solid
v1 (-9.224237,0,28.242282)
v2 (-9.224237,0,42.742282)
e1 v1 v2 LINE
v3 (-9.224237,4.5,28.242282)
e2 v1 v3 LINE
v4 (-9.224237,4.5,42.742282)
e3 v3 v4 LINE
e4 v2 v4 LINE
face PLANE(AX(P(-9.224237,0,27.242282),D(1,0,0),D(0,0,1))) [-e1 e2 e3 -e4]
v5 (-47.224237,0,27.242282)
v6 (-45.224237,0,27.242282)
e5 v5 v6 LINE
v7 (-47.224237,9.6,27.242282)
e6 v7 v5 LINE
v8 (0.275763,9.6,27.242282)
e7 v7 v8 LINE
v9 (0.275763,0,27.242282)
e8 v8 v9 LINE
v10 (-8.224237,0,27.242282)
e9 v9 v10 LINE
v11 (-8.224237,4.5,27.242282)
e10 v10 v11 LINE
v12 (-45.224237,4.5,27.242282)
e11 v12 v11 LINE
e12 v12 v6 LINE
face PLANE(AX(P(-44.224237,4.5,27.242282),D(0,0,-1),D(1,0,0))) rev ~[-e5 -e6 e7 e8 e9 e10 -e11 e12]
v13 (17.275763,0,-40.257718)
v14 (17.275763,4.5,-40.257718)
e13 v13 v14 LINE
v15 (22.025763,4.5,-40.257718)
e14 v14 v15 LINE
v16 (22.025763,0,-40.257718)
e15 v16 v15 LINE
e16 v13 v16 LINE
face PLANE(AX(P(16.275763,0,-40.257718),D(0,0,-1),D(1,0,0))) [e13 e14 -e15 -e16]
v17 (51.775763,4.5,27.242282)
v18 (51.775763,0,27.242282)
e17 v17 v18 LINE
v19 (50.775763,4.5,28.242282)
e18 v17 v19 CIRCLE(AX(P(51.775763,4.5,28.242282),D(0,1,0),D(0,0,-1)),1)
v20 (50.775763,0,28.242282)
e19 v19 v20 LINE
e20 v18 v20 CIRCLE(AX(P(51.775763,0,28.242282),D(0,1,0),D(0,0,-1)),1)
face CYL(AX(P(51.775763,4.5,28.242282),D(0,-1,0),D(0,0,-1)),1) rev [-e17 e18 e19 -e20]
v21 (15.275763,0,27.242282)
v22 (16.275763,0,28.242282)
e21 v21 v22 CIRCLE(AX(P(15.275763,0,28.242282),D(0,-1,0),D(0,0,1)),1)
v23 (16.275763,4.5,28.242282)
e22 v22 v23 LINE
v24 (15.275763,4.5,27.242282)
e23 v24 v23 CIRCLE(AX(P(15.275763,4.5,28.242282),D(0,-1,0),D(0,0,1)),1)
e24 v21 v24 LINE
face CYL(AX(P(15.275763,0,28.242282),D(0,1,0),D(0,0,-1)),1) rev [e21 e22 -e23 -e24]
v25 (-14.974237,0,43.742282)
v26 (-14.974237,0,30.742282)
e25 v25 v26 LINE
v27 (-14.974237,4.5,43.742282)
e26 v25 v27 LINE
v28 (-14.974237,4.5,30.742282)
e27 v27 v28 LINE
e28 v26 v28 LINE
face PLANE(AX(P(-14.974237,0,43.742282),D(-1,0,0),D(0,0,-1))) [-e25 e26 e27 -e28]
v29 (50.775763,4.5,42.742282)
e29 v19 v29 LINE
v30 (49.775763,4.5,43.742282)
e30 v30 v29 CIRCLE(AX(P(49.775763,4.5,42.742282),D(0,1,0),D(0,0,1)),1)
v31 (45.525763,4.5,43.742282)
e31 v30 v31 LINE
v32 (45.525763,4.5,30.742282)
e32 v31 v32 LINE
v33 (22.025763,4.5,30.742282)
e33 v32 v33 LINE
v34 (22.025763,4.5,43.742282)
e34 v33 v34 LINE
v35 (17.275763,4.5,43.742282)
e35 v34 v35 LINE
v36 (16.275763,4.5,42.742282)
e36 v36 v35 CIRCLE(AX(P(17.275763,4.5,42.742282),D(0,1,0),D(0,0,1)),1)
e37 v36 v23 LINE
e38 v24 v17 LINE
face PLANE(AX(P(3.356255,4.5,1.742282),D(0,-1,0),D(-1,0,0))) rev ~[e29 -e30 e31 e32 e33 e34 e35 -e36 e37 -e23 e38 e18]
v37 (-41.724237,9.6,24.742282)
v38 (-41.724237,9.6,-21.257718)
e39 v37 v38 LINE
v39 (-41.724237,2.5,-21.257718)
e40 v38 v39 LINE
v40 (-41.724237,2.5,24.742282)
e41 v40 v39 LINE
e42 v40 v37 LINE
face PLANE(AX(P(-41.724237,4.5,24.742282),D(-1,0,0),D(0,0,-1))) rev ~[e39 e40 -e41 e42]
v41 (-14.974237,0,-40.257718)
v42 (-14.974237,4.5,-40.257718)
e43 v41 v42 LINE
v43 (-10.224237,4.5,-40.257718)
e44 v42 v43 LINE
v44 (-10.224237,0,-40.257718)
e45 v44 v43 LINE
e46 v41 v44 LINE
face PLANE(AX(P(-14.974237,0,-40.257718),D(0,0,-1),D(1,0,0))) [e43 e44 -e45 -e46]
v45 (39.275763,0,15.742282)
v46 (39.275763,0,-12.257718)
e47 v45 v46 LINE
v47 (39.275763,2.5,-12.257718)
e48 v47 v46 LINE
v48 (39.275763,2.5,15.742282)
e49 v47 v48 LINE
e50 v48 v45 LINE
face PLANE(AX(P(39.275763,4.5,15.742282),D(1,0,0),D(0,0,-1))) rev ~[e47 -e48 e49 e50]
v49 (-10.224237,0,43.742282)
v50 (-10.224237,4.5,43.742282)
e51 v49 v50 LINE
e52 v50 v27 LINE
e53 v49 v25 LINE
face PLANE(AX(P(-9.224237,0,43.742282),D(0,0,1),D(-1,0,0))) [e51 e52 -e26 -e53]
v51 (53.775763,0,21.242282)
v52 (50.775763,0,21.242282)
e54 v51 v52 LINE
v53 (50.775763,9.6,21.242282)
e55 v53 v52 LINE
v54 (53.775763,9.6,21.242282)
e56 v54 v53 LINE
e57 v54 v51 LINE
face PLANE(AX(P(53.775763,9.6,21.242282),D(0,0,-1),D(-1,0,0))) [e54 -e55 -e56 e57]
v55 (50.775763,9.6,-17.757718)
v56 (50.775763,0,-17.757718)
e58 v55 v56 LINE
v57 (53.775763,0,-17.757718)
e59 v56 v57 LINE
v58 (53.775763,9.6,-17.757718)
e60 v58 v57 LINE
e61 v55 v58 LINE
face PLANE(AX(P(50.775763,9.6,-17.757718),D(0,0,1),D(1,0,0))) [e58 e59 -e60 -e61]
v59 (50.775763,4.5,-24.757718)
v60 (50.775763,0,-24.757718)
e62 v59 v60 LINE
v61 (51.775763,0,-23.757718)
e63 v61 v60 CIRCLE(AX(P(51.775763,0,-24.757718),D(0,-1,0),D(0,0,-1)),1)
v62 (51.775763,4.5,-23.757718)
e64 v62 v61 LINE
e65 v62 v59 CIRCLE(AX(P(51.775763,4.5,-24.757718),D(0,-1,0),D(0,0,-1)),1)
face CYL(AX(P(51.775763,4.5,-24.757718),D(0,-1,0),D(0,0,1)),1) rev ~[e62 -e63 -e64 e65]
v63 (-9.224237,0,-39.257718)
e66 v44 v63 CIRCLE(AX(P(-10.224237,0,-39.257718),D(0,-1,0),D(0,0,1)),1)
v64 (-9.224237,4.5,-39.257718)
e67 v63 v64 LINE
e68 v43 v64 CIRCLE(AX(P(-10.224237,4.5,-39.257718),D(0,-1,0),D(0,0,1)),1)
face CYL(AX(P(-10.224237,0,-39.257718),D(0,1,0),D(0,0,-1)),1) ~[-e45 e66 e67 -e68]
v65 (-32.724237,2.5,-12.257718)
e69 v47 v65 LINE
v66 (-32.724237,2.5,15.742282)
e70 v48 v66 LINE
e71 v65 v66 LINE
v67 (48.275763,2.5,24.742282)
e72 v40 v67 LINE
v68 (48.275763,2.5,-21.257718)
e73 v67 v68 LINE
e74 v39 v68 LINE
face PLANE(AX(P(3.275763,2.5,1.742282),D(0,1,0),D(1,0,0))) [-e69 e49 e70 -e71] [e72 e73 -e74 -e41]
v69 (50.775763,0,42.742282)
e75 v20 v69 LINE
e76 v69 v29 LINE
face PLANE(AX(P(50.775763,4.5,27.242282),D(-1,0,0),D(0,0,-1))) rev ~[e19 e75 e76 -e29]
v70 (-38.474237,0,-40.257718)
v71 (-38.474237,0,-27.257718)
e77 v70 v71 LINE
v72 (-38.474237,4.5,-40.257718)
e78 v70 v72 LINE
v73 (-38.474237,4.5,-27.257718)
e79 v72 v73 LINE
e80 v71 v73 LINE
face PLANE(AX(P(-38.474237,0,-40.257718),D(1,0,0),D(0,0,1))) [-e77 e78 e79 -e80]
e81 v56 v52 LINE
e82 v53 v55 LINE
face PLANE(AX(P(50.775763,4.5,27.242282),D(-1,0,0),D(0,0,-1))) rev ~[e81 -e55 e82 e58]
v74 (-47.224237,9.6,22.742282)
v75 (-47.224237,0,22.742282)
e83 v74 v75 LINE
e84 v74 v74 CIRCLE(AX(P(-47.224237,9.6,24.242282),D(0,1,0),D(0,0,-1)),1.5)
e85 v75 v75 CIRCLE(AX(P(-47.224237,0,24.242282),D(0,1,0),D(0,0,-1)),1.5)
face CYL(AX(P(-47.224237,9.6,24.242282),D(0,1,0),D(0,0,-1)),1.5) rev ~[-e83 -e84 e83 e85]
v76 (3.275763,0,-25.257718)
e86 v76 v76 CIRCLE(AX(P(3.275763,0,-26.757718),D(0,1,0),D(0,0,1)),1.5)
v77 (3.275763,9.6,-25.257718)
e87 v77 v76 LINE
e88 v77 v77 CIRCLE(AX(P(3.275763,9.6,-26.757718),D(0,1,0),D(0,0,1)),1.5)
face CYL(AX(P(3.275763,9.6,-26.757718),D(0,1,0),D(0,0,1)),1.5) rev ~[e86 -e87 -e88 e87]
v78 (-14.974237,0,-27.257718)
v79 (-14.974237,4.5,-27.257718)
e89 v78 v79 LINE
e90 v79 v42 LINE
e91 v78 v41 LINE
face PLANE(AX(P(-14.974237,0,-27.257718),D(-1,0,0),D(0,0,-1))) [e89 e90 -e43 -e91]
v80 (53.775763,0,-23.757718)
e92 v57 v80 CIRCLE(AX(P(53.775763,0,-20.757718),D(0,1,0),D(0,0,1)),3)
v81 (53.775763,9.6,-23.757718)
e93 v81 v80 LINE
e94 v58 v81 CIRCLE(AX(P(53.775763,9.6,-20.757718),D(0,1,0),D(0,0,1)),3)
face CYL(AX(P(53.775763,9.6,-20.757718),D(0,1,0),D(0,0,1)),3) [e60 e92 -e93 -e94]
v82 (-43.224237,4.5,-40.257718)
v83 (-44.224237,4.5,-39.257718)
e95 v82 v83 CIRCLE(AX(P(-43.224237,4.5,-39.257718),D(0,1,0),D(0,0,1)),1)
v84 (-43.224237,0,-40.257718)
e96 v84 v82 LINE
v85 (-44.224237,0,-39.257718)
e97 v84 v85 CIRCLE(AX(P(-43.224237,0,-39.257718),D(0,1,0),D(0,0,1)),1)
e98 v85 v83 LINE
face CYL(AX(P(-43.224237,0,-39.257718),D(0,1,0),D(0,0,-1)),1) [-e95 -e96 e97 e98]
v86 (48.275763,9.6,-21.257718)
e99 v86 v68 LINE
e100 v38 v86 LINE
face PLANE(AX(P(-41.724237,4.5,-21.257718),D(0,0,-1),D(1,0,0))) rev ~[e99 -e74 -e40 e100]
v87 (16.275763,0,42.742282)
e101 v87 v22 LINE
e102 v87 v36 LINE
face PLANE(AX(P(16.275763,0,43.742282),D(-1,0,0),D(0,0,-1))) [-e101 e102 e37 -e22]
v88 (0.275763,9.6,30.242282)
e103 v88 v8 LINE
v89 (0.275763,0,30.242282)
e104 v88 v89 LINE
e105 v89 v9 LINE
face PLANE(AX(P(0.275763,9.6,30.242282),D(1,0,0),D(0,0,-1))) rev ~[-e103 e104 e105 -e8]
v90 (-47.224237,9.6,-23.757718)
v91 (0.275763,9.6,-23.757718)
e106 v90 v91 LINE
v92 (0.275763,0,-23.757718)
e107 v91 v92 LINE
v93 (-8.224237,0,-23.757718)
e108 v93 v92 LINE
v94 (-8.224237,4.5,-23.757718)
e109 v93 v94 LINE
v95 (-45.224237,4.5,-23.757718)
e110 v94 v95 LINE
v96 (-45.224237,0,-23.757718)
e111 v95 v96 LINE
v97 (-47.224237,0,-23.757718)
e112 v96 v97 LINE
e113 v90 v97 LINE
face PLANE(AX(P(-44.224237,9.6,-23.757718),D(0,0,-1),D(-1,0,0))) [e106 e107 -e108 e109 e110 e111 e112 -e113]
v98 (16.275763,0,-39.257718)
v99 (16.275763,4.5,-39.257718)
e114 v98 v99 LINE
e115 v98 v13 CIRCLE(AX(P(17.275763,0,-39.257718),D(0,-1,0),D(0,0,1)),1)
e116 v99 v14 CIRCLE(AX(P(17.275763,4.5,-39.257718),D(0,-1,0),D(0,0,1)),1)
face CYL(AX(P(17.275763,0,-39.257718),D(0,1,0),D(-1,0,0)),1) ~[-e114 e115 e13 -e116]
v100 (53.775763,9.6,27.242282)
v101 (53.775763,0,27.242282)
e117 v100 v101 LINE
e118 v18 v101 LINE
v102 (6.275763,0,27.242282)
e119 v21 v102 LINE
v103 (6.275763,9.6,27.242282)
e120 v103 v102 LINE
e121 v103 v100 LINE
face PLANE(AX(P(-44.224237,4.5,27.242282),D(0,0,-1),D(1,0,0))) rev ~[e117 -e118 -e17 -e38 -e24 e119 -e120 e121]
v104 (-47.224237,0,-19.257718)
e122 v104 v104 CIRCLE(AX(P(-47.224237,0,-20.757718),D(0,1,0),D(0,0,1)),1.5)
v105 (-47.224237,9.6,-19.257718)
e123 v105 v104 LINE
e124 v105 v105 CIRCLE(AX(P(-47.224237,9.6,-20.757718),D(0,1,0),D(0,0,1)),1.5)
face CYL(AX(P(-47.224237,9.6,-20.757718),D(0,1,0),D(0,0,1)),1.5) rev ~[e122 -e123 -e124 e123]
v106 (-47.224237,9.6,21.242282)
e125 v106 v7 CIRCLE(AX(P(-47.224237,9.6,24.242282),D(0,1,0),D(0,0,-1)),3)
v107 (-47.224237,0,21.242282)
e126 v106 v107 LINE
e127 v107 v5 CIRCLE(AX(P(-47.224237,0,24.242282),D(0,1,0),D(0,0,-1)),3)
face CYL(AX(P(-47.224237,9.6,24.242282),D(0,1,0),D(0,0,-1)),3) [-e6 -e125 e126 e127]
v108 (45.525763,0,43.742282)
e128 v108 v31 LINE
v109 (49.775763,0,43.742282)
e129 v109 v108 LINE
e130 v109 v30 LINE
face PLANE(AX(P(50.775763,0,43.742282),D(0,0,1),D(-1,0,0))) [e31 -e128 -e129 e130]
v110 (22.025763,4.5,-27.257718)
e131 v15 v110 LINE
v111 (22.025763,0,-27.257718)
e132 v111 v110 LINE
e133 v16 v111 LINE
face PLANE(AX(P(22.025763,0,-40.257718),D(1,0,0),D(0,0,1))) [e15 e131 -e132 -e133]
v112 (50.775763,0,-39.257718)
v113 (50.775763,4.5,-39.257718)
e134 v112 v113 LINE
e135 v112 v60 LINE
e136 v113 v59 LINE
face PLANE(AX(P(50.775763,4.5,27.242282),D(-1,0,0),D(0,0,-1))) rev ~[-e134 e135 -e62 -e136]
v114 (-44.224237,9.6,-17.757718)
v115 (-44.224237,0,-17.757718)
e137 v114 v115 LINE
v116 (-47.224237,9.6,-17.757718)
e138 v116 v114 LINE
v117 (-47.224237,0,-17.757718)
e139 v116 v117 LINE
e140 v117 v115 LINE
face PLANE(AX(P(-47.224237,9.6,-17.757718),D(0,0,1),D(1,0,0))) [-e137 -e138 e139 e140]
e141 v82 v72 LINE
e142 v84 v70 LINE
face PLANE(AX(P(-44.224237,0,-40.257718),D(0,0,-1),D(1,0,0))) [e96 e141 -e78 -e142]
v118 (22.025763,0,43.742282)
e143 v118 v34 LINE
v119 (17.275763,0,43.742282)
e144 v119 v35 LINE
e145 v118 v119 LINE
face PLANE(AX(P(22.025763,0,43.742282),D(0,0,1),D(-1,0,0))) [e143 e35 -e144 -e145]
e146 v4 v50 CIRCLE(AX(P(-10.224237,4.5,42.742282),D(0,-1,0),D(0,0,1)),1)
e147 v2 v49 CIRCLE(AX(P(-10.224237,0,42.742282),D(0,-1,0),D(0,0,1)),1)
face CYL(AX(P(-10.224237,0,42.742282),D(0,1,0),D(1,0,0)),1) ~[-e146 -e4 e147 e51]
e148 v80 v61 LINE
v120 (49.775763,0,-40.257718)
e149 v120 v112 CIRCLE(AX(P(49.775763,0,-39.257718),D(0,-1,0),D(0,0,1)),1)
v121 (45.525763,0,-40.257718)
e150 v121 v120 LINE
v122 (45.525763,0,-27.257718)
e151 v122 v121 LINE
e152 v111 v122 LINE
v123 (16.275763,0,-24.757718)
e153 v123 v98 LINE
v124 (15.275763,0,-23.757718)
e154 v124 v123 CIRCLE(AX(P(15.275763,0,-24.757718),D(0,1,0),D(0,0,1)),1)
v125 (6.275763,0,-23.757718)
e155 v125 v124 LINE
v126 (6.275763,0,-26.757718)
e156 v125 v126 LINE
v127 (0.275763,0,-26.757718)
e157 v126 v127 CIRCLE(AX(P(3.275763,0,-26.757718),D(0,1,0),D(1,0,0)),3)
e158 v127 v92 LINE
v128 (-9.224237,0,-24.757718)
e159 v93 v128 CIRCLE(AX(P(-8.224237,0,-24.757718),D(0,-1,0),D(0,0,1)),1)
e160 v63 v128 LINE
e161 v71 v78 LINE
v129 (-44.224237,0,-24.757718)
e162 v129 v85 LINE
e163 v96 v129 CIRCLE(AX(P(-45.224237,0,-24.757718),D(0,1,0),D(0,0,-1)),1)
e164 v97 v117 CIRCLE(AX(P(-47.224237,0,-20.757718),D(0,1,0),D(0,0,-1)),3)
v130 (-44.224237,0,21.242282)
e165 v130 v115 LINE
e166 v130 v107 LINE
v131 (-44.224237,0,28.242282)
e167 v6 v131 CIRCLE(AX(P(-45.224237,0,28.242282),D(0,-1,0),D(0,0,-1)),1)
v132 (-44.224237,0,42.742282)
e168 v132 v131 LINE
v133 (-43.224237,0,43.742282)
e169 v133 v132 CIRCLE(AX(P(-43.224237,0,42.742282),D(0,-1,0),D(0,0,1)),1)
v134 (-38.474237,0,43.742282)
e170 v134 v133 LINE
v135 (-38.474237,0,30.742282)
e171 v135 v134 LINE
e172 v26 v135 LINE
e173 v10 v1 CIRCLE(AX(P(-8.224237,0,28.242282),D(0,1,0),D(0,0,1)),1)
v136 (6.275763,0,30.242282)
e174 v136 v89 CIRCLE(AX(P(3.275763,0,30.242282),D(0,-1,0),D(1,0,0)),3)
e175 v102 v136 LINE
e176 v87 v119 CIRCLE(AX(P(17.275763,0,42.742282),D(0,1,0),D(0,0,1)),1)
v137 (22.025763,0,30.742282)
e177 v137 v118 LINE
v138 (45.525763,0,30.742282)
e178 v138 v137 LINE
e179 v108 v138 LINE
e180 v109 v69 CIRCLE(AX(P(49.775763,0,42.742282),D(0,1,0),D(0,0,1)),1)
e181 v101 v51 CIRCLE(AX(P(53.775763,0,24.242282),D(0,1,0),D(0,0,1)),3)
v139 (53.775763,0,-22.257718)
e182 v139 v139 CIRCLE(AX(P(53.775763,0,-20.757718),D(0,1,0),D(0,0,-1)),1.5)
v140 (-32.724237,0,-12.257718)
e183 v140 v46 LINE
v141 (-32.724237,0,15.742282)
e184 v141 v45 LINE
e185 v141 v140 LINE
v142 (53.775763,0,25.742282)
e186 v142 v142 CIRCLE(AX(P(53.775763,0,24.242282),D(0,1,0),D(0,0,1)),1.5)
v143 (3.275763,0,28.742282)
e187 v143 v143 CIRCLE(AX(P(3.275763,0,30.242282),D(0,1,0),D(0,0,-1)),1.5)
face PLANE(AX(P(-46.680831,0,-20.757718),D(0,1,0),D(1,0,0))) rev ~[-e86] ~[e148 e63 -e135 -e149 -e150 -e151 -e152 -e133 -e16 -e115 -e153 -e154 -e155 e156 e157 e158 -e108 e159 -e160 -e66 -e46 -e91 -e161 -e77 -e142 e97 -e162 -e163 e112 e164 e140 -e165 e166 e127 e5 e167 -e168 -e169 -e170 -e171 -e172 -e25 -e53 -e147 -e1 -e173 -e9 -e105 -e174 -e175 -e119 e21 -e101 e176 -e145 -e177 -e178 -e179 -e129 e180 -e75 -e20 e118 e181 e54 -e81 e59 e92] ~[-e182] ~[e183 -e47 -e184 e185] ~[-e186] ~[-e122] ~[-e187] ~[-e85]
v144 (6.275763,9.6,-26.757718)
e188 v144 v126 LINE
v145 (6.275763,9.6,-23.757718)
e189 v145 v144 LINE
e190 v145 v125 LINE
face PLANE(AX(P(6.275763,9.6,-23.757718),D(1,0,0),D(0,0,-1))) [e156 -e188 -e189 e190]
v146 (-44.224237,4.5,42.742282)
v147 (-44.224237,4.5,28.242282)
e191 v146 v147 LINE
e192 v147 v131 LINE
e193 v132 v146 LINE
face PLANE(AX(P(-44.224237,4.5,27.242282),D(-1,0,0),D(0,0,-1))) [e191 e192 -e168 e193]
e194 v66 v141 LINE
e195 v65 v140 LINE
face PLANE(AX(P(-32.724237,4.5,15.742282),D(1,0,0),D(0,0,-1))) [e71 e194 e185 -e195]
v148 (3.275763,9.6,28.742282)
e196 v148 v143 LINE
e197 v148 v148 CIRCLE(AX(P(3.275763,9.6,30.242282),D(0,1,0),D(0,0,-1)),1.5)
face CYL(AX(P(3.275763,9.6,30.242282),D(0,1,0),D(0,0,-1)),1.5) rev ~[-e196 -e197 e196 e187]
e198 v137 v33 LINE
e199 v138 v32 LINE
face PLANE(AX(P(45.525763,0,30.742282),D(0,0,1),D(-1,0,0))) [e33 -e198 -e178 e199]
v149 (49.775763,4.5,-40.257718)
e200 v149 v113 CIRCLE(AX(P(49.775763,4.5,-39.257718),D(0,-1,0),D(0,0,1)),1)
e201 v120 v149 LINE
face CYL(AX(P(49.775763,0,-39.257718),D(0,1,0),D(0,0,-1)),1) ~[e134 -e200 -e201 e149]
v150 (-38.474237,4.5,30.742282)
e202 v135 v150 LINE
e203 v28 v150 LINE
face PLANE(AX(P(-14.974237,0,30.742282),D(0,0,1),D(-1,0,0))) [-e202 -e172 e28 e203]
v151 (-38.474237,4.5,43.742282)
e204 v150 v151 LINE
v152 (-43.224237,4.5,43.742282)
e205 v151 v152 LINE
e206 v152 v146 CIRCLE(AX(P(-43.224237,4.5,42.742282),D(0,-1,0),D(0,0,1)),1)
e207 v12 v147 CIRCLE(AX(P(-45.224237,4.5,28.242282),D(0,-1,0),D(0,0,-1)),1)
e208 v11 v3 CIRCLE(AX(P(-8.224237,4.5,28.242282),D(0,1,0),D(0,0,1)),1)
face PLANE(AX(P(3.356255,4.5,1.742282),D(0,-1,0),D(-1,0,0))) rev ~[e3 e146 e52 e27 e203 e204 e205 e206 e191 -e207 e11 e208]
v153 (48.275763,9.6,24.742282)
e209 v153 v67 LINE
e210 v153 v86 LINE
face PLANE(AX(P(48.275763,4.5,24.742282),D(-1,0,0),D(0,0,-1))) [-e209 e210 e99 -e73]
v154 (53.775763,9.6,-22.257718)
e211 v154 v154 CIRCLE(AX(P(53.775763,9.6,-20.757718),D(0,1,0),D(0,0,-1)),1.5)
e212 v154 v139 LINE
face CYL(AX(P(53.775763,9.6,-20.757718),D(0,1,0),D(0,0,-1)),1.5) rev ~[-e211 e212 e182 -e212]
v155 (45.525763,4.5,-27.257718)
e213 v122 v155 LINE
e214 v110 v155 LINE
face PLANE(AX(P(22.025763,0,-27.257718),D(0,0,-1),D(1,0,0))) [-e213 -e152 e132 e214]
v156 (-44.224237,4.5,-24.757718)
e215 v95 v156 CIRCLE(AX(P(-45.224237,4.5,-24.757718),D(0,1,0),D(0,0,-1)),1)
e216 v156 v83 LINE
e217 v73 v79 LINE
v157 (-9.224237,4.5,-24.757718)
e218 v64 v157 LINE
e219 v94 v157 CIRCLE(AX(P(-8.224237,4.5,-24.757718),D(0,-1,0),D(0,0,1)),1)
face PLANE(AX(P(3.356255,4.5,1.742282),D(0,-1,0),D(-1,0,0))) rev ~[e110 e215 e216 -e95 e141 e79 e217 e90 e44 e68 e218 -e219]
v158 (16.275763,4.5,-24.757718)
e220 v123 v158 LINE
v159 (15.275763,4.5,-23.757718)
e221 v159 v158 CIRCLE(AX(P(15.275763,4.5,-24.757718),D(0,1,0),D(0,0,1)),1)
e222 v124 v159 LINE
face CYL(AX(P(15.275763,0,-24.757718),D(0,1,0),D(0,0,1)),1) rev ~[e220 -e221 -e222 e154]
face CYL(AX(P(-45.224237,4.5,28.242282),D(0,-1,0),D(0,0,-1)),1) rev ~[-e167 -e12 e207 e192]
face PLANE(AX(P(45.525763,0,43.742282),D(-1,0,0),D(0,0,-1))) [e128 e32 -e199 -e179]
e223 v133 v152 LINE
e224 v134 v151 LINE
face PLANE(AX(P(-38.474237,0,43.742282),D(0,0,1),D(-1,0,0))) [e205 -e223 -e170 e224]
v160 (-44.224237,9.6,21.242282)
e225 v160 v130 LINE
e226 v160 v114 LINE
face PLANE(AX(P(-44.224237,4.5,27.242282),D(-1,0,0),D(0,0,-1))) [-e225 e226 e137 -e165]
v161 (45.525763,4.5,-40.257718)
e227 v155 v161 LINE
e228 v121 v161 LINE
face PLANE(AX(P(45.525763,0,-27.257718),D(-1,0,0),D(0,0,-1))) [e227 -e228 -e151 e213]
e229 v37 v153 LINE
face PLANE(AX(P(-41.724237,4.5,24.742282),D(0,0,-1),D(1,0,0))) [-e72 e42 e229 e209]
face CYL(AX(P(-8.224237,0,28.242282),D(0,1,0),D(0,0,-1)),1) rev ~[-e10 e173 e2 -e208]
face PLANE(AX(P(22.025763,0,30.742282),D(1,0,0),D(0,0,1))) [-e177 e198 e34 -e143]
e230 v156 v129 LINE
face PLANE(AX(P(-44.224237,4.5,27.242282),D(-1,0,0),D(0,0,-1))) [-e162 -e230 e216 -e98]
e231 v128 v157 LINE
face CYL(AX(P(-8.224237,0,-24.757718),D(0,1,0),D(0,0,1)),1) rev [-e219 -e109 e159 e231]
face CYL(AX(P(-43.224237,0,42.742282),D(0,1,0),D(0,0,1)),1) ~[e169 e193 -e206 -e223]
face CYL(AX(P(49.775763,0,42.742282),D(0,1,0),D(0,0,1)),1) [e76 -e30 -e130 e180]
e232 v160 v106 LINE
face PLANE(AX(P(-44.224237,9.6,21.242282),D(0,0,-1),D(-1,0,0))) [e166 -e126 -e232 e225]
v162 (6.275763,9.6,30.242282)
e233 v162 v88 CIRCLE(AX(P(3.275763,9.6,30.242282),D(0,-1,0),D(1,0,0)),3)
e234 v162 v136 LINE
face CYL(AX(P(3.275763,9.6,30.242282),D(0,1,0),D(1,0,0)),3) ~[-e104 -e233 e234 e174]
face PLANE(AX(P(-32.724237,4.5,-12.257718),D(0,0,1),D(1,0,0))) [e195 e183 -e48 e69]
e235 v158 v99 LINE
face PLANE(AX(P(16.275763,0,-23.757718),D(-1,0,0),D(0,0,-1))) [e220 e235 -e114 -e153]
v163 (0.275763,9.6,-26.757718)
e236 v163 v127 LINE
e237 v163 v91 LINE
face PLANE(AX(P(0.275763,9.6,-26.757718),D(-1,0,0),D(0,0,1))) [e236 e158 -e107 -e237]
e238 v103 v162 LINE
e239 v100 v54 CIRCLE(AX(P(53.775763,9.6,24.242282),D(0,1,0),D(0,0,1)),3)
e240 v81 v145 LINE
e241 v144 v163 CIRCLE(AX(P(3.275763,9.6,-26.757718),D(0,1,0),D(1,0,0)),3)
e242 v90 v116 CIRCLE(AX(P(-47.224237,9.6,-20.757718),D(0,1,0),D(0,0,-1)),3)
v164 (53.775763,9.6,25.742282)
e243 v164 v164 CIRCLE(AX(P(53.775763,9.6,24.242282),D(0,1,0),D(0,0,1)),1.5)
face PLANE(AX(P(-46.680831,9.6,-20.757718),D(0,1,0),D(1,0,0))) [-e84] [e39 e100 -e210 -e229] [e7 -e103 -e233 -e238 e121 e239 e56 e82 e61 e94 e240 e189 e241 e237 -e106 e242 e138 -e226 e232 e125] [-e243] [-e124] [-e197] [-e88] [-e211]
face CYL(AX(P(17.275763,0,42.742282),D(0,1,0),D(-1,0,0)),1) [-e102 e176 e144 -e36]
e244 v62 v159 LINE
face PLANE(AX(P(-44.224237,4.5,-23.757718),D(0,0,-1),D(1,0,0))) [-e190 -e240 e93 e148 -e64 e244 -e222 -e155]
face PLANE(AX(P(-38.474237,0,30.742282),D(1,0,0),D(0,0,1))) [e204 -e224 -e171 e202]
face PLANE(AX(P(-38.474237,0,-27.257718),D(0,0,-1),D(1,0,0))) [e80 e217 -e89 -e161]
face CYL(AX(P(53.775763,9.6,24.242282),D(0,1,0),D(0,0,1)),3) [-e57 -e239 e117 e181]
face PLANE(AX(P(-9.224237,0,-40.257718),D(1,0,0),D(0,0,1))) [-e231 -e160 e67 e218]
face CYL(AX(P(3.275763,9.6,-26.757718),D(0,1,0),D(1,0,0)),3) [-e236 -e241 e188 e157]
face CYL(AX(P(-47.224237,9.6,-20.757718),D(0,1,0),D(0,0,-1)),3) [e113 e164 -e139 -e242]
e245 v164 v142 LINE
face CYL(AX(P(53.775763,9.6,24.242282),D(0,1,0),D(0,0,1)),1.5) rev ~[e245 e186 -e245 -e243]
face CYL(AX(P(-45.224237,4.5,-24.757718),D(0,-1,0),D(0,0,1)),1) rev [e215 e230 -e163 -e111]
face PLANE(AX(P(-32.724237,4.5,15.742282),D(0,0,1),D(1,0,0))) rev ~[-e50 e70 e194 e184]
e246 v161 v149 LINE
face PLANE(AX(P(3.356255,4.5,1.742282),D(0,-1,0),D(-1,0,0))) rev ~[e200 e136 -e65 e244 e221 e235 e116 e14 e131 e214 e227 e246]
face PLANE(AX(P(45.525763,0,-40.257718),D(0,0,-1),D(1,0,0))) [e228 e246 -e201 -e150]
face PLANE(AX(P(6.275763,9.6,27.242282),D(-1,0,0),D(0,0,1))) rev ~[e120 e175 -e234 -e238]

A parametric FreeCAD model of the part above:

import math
import FreeCAD as App
import Part
import Sketcher
from FreeCAD import Vector
Q = App.Units.Quantity


def edges_at(feature, points):
    """Names of the edges that pass closest to the given points."""
    edges = feature.Shape.Edges
    near = lambda p: min(range(len(edges)), key=lambda i: edges[i].distToShape(Part.Vertex(*p))[0])
    return sorted({f"Edge{near(p) + 1}" for p in points})

doc = App.newDocument("Part")
body = doc.addObject("PartDesign::Body", "Body")

sketch1 = body.newObject("Sketcher::SketchObject", "Sketch")
sketch1.AttachmentSupport = (doc.getObject("XZ_Plane"), [""])
sketch1.MapMode = "FlatFace"
sketch1.addGeometry(Part.LineSegment(Vector(-15, 31, 0), Vector(-15, 44, 0)), False)
sketch1.addGeometry(Part.LineSegment(Vector(-15, 44, 0), Vector(-9, 44, 0)), False)
sketch1.addGeometry(Part.LineSegment(Vector(-9, 44, 0), Vector(-9, 27, 0)), False)
sketch1.addGeometry(Part.LineSegment(Vector(-9, 27, 0), Vector(16, 27, 0)), False)
sketch1.addGeometry(Part.LineSegment(Vector(16, 27, 0), Vector(16, 44, 0)), False)
sketch1.addGeometry(Part.LineSegment(Vector(16, 44, 0), Vector(22, 44, 0)), False)
sketch1.addGeometry(Part.LineSegment(Vector(22, 44, 0), Vector(22, 31, 0)), False)
sketch1.addGeometry(Part.LineSegment(Vector(22, 31, 0), Vector(46, 31, 0)), False)
sketch1.addGeometry(Part.LineSegment(Vector(46, 31, 0), Vector(46, 44, 0)), False)
sketch1.addGeometry(Part.LineSegment(Vector(46, 44, 0), Vector(51, 44, 0)), False)
sketch1.addGeometry(Part.LineSegment(Vector(51, 44, 0), Vector(51, -40, 0)), False)
sketch1.addGeometry(Part.LineSegment(Vector(51, -40, 0), Vector(46, -40, 0)), False)
sketch1.addGeometry(Part.LineSegment(Vector(46, -40, 0), Vector(46, -27, 0)), False)
sketch1.addGeometry(Part.LineSegment(Vector(46, -27, 0), Vector(22, -27, 0)), False)
sketch1.addGeometry(Part.LineSegment(Vector(22, -27, 0), Vector(22, -40, 0)), False)
sketch1.addGeometry(Part.LineSegment(Vector(22, -40, 0), Vector(16, -40, 0)), False)
sketch1.addGeometry(Part.LineSegment(Vector(16, -40, 0), Vector(16, -24, 0)), False)
sketch1.addGeometry(Part.LineSegment(Vector(16, -24, 0), Vector(-9, -24, 0)), False)
sketch1.addGeometry(Part.LineSegment(Vector(-9, -24, 0), Vector(-9, -40, 0)), False)
sketch1.addGeometry(Part.LineSegment(Vector(-9, -40, 0), Vector(-15, -40, 0)), False)
sketch1.addGeometry(Part.LineSegment(Vector(-15, -40, 0), Vector(-15, -27, 0)), False)
sketch1.addGeometry(Part.LineSegment(Vector(-15, -27, 0), Vector(-38, -27, 0)), False)
sketch1.addGeometry(Part.LineSegment(Vector(-38, -27, 0), Vector(-38, -40, 0)), False)
sketch1.addGeometry(Part.LineSegment(Vector(-38, -40, 0), Vector(-44, -40, 0)), False)
sketch1.addGeometry(Part.LineSegment(Vector(-44, -40, 0), Vector(-44, 44, 0)), False)
sketch1.addGeometry(Part.LineSegment(Vector(-44, 44, 0), Vector(-38, 44, 0)), False)
sketch1.addGeometry(Part.LineSegment(Vector(-38, 44, 0), Vector(-38, 31, 0)), False)
sketch1.addGeometry(Part.LineSegment(Vector(-38, 31, 0), Vector(-15, 31, 0)), False)
sketch1.addConstraint(Sketcher.Constraint("Coincident", 0, 2, 1, 1))
sketch1.addConstraint(Sketcher.Constraint("Coincident", 1, 2, 2, 1))
sketch1.addConstraint(Sketcher.Constraint("Coincident", 2, 2, 3, 1))
sketch1.addConstraint(Sketcher.Constraint("Coincident", 3, 2, 4, 1))
sketch1.addConstraint(Sketcher.Constraint("Coincident", 4, 2, 5, 1))
sketch1.addConstraint(Sketcher.Constraint("Coincident", 5, 2, 6, 1))
sketch1.addConstraint(Sketcher.Constraint("Coincident", 6, 2, 7, 1))
sketch1.addConstraint(Sketcher.Constraint("Coincident", 7, 2, 8, 1))
sketch1.addConstraint(Sketcher.Constraint("Coincident", 8, 2, 9, 1))
sketch1.addConstraint(Sketcher.Constraint("Coincident", 9, 2, 10, 1))
sketch1.addConstraint(Sketcher.Constraint("Coincident", 10, 2, 11, 1))
sketch1.addConstraint(Sketcher.Constraint("Coincident", 11, 2, 12, 1))
sketch1.addConstraint(Sketcher.Constraint("Coincident", 12, 2, 13, 1))
sketch1.addConstraint(Sketcher.Constraint("Coincident", 13, 2, 14, 1))
sketch1.addConstraint(Sketcher.Constraint("Coincident", 14, 2, 15, 1))
sketch1.addConstraint(Sketcher.Constraint("Coincident", 15, 2, 16, 1))
sketch1.addConstraint(Sketcher.Constraint("Coincident", 16, 2, 17, 1))
sketch1.addConstraint(Sketcher.Constraint("Coincident", 17, 2, 18, 1))
sketch1.addConstraint(Sketcher.Constraint("Coincident", 18, 2, 19, 1))
sketch1.addConstraint(Sketcher.Constraint("Coincident", 19, 2, 20, 1))
sketch1.addConstraint(Sketcher.Constraint("Coincident", 20, 2, 21, 1))
sketch1.addConstraint(Sketcher.Constraint("Coincident", 21, 2, 22, 1))
sketch1.addConstraint(Sketcher.Constraint("Coincident", 22, 2, 23, 1))
sketch1.addConstraint(Sketcher.Constraint("Coincident", 23, 2, 24, 1))
sketch1.addConstraint(Sketcher.Constraint("Coincident", 24, 2, 25, 1))
sketch1.addConstraint(Sketcher.Constraint("Coincident", 25, 2, 26, 1))
sketch1.addConstraint(Sketcher.Constraint("Coincident", 26, 2, 27, 1))
sketch1.addConstraint(Sketcher.Constraint("Coincident", 27, 2, 0, 1))
sketch1.addConstraint(Sketcher.Constraint("Vertical", 0))
sketch1.addConstraint(Sketcher.Constraint("Horizontal", 1))
sketch1.addConstraint(Sketcher.Constraint("Vertical", 2))
sketch1.addConstraint(Sketcher.Constraint("Horizontal", 3))
sketch1.addConstraint(Sketcher.Constraint("Vertical", 4))
sketch1.addConstraint(Sketcher.Constraint("Horizontal", 5))
sketch1.addConstraint(Sketcher.Constraint("Vertical", 6))
sketch1.addConstraint(Sketcher.Constraint("Horizontal", 7))
sketch1.addConstraint(Sketcher.Constraint("Vertical", 8))
sketch1.addConstraint(Sketcher.Constraint("Horizontal", 9))
sketch1.addConstraint(Sketcher.Constraint("Vertical", 10))
sketch1.addConstraint(Sketcher.Constraint("Horizontal", 11))
sketch1.addConstraint(Sketcher.Constraint("Vertical", 12))
sketch1.addConstraint(Sketcher.Constraint("Horizontal", 13))
sketch1.addConstraint(Sketcher.Constraint("Vertical", 14))
sketch1.addConstraint(Sketcher.Constraint("Horizontal", 15))
sketch1.addConstraint(Sketcher.Constraint("Vertical", 16))
sketch1.addConstraint(Sketcher.Constraint("Horizontal", 17))
sketch1.addConstraint(Sketcher.Constraint("Vertical", 18))
sketch1.addConstraint(Sketcher.Constraint("Horizontal", 19))
sketch1.addConstraint(Sketcher.Constraint("Vertical", 20))
sketch1.addConstraint(Sketcher.Constraint("Horizontal", 21))
sketch1.addConstraint(Sketcher.Constraint("Vertical", 22))
sketch1.addConstraint(Sketcher.Constraint("Horizontal", 23))
sketch1.addConstraint(Sketcher.Constraint("Vertical", 24))
sketch1.addConstraint(Sketcher.Constraint("Horizontal", 25))
sketch1.addConstraint(Sketcher.Constraint("Vertical", 26))
sketch1.addConstraint(Sketcher.Constraint("Horizontal", 27))
sketch1.addConstraint(Sketcher.Constraint("Horizontal", 1, 2, 4, 2))
sketch1.addConstraint(Sketcher.Constraint("Horizontal", 5, 2, 8, 2))
sketch1.addConstraint(Sketcher.Constraint("Horizontal", 11, 2, 14, 2))
sketch1.addConstraint(Sketcher.Constraint("Horizontal", 15, 2, 18, 2))
sketch1.addConstraint(Sketcher.Constraint("Horizontal", 13, 2, 20, 2))
sketch1.addConstraint(Sketcher.Constraint("Horizontal", 19, 2, 22, 2))
sketch1.addConstraint(Sketcher.Constraint("Horizontal", 9, 2, 24, 2))
sketch1.addConstraint(Sketcher.Constraint("Horizontal", 7, 2, 26, 2))
sketch1.addConstraint(Sketcher.Constraint("Vertical", 8, 2, 11, 2))
sketch1.addConstraint(Sketcher.Constraint("Vertical", 6, 2, 13, 2))
sketch1.addConstraint(Sketcher.Constraint("Vertical", 4, 2, 15, 2))
sketch1.addConstraint(Sketcher.Constraint("Vertical", 2, 2, 17, 2))
sketch1.addConstraint(Sketcher.Constraint("Vertical", 0, 2, 19, 2))
sketch1.addConstraint(Sketcher.Constraint("Vertical", 22, 2, 25, 2))
sketch1.addConstraint(Sketcher.Constraint("Equal", 1, 5))
sketch1.addConstraint(Sketcher.Constraint("Equal", 13, 21))
sketch1.addConstraint(Sketcher.Constraint("Equal", 19, 23))
sketch1.addConstraint(Sketcher.Constraint("Equal", 8, 12))
sketch1.addConstraint(Sketcher.Constraint("Equal", 4, 16))
sketch1.addConstraint(Sketcher.Constraint("DistanceY", 0, 1, 0, 2, Q("13 mm")))
sketch1.addConstraint(Sketcher.Constraint("DistanceY", 10, 2, 10, 1, Q("84 mm")))
sketch1.addConstraint(Sketcher.Constraint("DistanceX", 3, 1, 3, 2, Q("25.5 mm")))
sketch1.addConstraint(Sketcher.Constraint("DistanceX", 7, 1, 7, 2, Q("23.5 mm")))
sketch1.addConstraint(Sketcher.Constraint("DistanceY", 2, 2, 2, 1, Q("16.5 mm")))
sketch1.addConstraint(Sketcher.Constraint("DistanceX", 0, 2, 5, 2, Q("37 mm")))
sketch1.addConstraint(Sketcher.Constraint("DistanceX", 9, 1, 9, 2, Q("5.25 mm")))
sketch1.addConstraint(Sketcher.Constraint("DistanceY", -1, 1, 0, 2, Q("43.742282 mm")))
sketch1.addConstraint(Sketcher.Constraint("DistanceX", 0, 2, -1, 1, Q("14.974237 mm")))
pad1 = body.newObject("PartDesign::Pad", "Pad")
pad1.Profile = sketch1
pad1.Length = 4.5
pad1.Reversed = True

sketch2 = body.newObject("Sketcher::SketchObject", "Sketch001")
sketch2.AttachmentSupport = (doc.getObject("XZ_Plane"), [""])
sketch2.MapMode = "FlatFace"
sketch2.AttachmentOffset = App.Placement(Vector(0, 0, -4.5), App.Rotation())
sketch2.addGeometry(Part.LineSegment(Vector(-33, -12, 0), Vector(-33, 16, 0)), False)
sketch2.addGeometry(Part.LineSegment(Vector(-33, 16, 0), Vector(39, 16, 0)), False)
sketch2.addGeometry(Part.LineSegment(Vector(39, 16, 0), Vector(39, -12, 0)), False)
sketch2.addGeometry(Part.LineSegment(Vector(39, -12, 0), Vector(-33, -12, 0)), False)
sketch2.addConstraint(Sketcher.Constraint("Coincident", 0, 2, 1, 1))
sketch2.addConstraint(Sketcher.Constraint("Coincident", 1, 2, 2, 1))
sketch2.addConstraint(Sketcher.Constraint("Coincident", 2, 2, 3, 1))
sketch2.addConstraint(Sketcher.Constraint("Coincident", 3, 2, 0, 1))
sketch2.addConstraint(Sketcher.Constraint("Vertical", 0))
sketch2.addConstraint(Sketcher.Constraint("Horizontal", 1))
sketch2.addConstraint(Sketcher.Constraint("Vertical", 2))
sketch2.addConstraint(Sketcher.Constraint("Horizontal", 3))
sketch2.addConstraint(Sketcher.Constraint("DistanceX", 1, 1, 1, 2, Q("72 mm")))
sketch2.addConstraint(Sketcher.Constraint("DistanceY", 0, 1, 0, 2, Q("28 mm")))
sketch2.addConstraint(Sketcher.Constraint("DistanceY", -1, 1, 0, 2, Q("15.742282 mm")))
sketch2.addConstraint(Sketcher.Constraint("DistanceX", 0, 2, -1, 1, Q("32.724237 mm")))
pocket1 = body.newObject("PartDesign::Pocket", "Pocket")
pocket1.Profile = sketch2
pocket1.Length = 4.5
pocket1.Reversed = True

sketch3 = body.newObject("Sketcher::SketchObject", "Sketch002")
sketch3.AttachmentSupport = (doc.getObject("XZ_Plane"), [""])
sketch3.MapMode = "FlatFace"
sketch3.AttachmentOffset = App.Placement(Vector(0, 0, -4.5), App.Rotation())
sketch3.addGeometry(Part.LineSegment(Vector(-44, -24, 0), Vector(-44, 27, 0)), False)
sketch3.addGeometry(Part.LineSegment(Vector(-44, 27, 0), Vector(51, 27, 0)), False)
sketch3.addGeometry(Part.LineSegment(Vector(51, 27, 0), Vector(51, -24, 0)), False)
sketch3.addGeometry(Part.LineSegment(Vector(51, -24, 0), Vector(-44, -24, 0)), False)
sketch3.addGeometry(Part.LineSegment(Vector(48, 25, 0), Vector(-42, 25, 0)), False)
sketch3.addGeometry(Part.LineSegment(Vector(-42, 25, 0), Vector(-42, -21, 0)), False)
sketch3.addGeometry(Part.LineSegment(Vector(-42, -21, 0), Vector(48, -21, 0)), False)
sketch3.addGeometry(Part.LineSegment(Vector(48, -21, 0), Vector(48, 25, 0)), False)
sketch3.addConstraint(Sketcher.Constraint("Coincident", 0, 2, 1, 1))
sketch3.addConstraint(Sketcher.Constraint("Coincident", 1, 2, 2, 1))
sketch3.addConstraint(Sketcher.Constraint("Coincident", 2, 2, 3, 1))
sketch3.addConstraint(Sketcher.Constraint("Coincident", 3, 2, 0, 1))
sketch3.addConstraint(Sketcher.Constraint("Coincident", 4, 2, 5, 1))
sketch3.addConstraint(Sketcher.Constraint("Coincident", 5, 2, 6, 1))
sketch3.addConstraint(Sketcher.Constraint("Coincident", 6, 2, 7, 1))
sketch3.addConstraint(Sketcher.Constraint("Coincident", 7, 2, 4, 1))
sketch3.addConstraint(Sketcher.Constraint("Vertical", 0))
sketch3.addConstraint(Sketcher.Constraint("Horizontal", 1))
sketch3.addConstraint(Sketcher.Constraint("Vertical", 2))
sketch3.addConstraint(Sketcher.Constraint("Horizontal", 3))
sketch3.addConstraint(Sketcher.Constraint("Horizontal", 4))
sketch3.addConstraint(Sketcher.Constraint("Vertical", 5))
sketch3.addConstraint(Sketcher.Constraint("Horizontal", 6))
sketch3.addConstraint(Sketcher.Constraint("Vertical", 7))
sketch3.addConstraint(Sketcher.Constraint("DistanceX", 1, 1, 1, 2, Q("95 mm")))
sketch3.addConstraint(Sketcher.Constraint("DistanceX", 4, 2, 4, 1, Q("90 mm")))
sketch3.addConstraint(Sketcher.Constraint("DistanceY", 0, 1, 0, 2, Q("51 mm")))
sketch3.addConstraint(Sketcher.Constraint("DistanceY", 5, 2, 5, 1, Q("46 mm")))
sketch3.addConstraint(Sketcher.Constraint("DistanceX", 0, 2, 4, 2, Q("2.5 mm")))
sketch3.addConstraint(Sketcher.Constraint("DistanceY", 4, 2, 0, 2, Q("2.5 mm")))
sketch3.addConstraint(Sketcher.Constraint("DistanceY", -1, 1, 0, 2, Q("27.242282 mm")))
sketch3.addConstraint(Sketcher.Constraint("DistanceX", 0, 2, -1, 1, Q("44.224237 mm")))
pad2 = body.newObject("PartDesign::Pad", "Pad001")
pad2.Profile = sketch3
pad2.Length = 5.1
pad2.Reversed = True

sketch4 = body.newObject("Sketcher::SketchObject", "Sketch003")
sketch4.AttachmentSupport = (doc.getObject("XZ_Plane"), [""])
sketch4.MapMode = "FlatFace"
sketch4.AttachmentOffset = App.Placement(Vector(0, 0, -4.5), App.Rotation())
sketch4.addGeometry(Part.LineSegment(Vector(-42, -21, 0), Vector(-42, 25, 0)), False)
sketch4.addGeometry(Part.LineSegment(Vector(-42, 25, 0), Vector(48, 25, 0)), False)
sketch4.addGeometry(Part.LineSegment(Vector(48, 25, 0), Vector(48, -21, 0)), False)
sketch4.addGeometry(Part.LineSegment(Vector(48, -21, 0), Vector(-42, -21, 0)), False)
sketch4.addConstraint(Sketcher.Constraint("Coincident", 0, 2, 1, 1))
sketch4.addConstraint(Sketcher.Constraint("Coincident", 1, 2, 2, 1))
sketch4.addConstraint(Sketcher.Constraint("Coincident", 2, 2, 3, 1))
sketch4.addConstraint(Sketcher.Constraint("Coincident", 3, 2, 0, 1))
sketch4.addConstraint(Sketcher.Constraint("Vertical", 0))
sketch4.addConstraint(Sketcher.Constraint("Horizontal", 1))
sketch4.addConstraint(Sketcher.Constraint("Vertical", 2))
sketch4.addConstraint(Sketcher.Constraint("Horizontal", 3))
sketch4.addConstraint(Sketcher.Constraint("DistanceX", 1, 1, 1, 2, Q("90 mm")))
sketch4.addConstraint(Sketcher.Constraint("DistanceY", 0, 1, 0, 2, Q("46 mm")))
sketch4.addConstraint(Sketcher.Constraint("DistanceY", -1, 1, 0, 2, Q("24.742282 mm")))
sketch4.addConstraint(Sketcher.Constraint("DistanceX", 0, 2, -1, 1, Q("41.724237 mm")))
pocket2 = body.newObject("PartDesign::Pocket", "Pocket001")
pocket2.Profile = sketch4
pocket2.Length = 2
pocket2.Reversed = True

sketch5 = body.newObject("Sketcher::SketchObject", "Sketch004")
sketch5.AttachmentSupport = (doc.getObject("XZ_Plane"), [""])
sketch5.MapMode = "FlatFace"
sketch5.AttachmentOffset = App.Placement(Vector(0, 0, -9.6), App.Rotation())
sketch5.addGeometry(Part.LineSegment(Vector(-44.2, -23.8, 0), Vector(-47.2, -23.8, 0)), False)
sketch5.addGeometry(Part.ArcOfCircle(Part.Circle(Vector(-47.2, -20.8, 0), Vector(0, 0, 1), 3), math.radians(90), math.radians(270)), False)
sketch5.addGeometry(Part.LineSegment(Vector(-47.2, -17.8, 0), Vector(-44.2, -17.8, 0)), False)
sketch5.addGeometry(Part.LineSegment(Vector(-44.2, -17.8, 0), Vector(-44.2, -23.8, 0)), False)
sketch5.addGeometry(Part.Circle(Vector(-47.2, -20.8, 0), Vector(0, 0, 1), 1.5), False)
sketch5.addGeometry(Part.LineSegment(Vector(50.8, -17.8, 0), Vector(53.8, -17.8, 0)), False)
sketch5.addGeometry(Part.ArcOfCircle(Part.Circle(Vector(53.8, -20.8, 0), Vector(0, 0, 1), 3), math.radians(-90), math.radians(90)), False)
sketch5.addGeometry(Part.LineSegment(Vector(53.8, -23.8, 0), Vector(50.8, -23.8, 0)), False)
sketch5.addGeometry(Part.LineSegment(Vector(50.8, -23.8, 0), Vector(50.8, -17.8, 0)), False)
sketch5.addGeometry(Part.Circle(Vector(53.8, -20.8, 0), Vector(0, 0, 1), 1.5), False)
sketch5.addGeometry(Part.LineSegment(Vector(50.8, 27.2, 0), Vector(53.8, 27.2, 0)), False)
sketch5.addGeometry(Part.ArcOfCircle(Part.Circle(Vector(53.8, 24.2, 0), Vector(0, 0, 1), 3), math.radians(-90), math.radians(90)), False)
sketch5.addGeometry(Part.LineSegment(Vector(53.8, 21.2, 0), Vector(50.8, 21.2, 0)), False)
sketch5.addGeometry(Part.LineSegment(Vector(50.8, 21.2, 0), Vector(50.8, 27.2, 0)), False)
sketch5.addGeometry(Part.Circle(Vector(53.8, 24.2, 0), Vector(0, 0, 1), 1.5), False)
sketch5.addGeometry(Part.LineSegment(Vector(-44.2, 21.2, 0), Vector(-47.2, 21.2, 0)), False)
sketch5.addGeometry(Part.ArcOfCircle(Part.Circle(Vector(-47.2, 24.2, 0), Vector(0, 0, 1), 3), math.radians(90), math.radians(270)), False)
sketch5.addGeometry(Part.LineSegment(Vector(-47.2, 27.2, 0), Vector(-44.2, 27.2, 0)), False)
sketch5.addGeometry(Part.LineSegment(Vector(-44.2, 27.2, 0), Vector(-44.2, 21.2, 0)), False)
sketch5.addGeometry(Part.Circle(Vector(-47.2, 24.2, 0), Vector(0, 0, 1), 1.5), False)
sketch5.addGeometry(Part.LineSegment(Vector(6.3, 30.2, 0), Vector(6.3, 27.2, 0)), False)
sketch5.addGeometry(Part.LineSegment(Vector(6.3, 27.2, 0), Vector(0.3, 27.2, 0)), False)
sketch5.addGeometry(Part.LineSegment(Vector(0.3, 27.2, 0), Vector(0.3, 30.2, 0)), False)
sketch5.addGeometry(Part.ArcOfCircle(Part.Circle(Vector(3.3, 30.2, 0), Vector(0, 0, 1), 3), math.radians(0), math.radians(180)), False)
sketch5.addGeometry(Part.Circle(Vector(3.3, 30.2, 0), Vector(0, 0, 1), 1.5), False)
sketch5.addGeometry(Part.LineSegment(Vector(0.3, -23.8, 0), Vector(6.3, -23.8, 0)), False)
sketch5.addGeometry(Part.LineSegment(Vector(6.3, -23.8, 0), Vector(6.3, -26.8, 0)), False)
sketch5.addGeometry(Part.ArcOfCircle(Part.Circle(Vector(3.3, -26.8, 0), Vector(0, 0, 1), 3), math.radians(180), math.radians(360)), False)
sketch5.addGeometry(Part.LineSegment(Vector(0.3, -26.8, 0), Vector(0.3, -23.8, 0)), False)
sketch5.addGeometry(Part.Circle(Vector(3.3, -26.8, 0), Vector(0, 0, 1), 1.5), False)
sketch5.addConstraint(Sketcher.Constraint("Tangent", 0, 2, 1, 2))
sketch5.addConstraint(Sketcher.Constraint("Tangent", 1, 1, 2, 1))
sketch5.addConstraint(Sketcher.Constraint("Coincident", 2, 2, 3, 1))
sketch5.addConstraint(Sketcher.Constraint("Coincident", 3, 2, 0, 1))
sketch5.addConstraint(Sketcher.Constraint("Tangent", 5, 2, 6, 2))
sketch5.addConstraint(Sketcher.Constraint("Tangent", 6, 1, 7, 1))
sketch5.addConstraint(Sketcher.Constraint("Coincident", 7, 2, 8, 1))
sketch5.addConstraint(Sketcher.Constraint("Coincident", 8, 2, 5, 1))
sketch5.addConstraint(Sketcher.Constraint("Tangent", 10, 2, 11, 2))
sketch5.addConstraint(Sketcher.Constraint("Tangent", 11, 1, 12, 1))
sketch5.addConstraint(Sketcher.Constraint("Coincident", 12, 2, 13, 1))
sketch5.addConstraint(Sketcher.Constraint("Coincident", 13, 2, 10, 1))
sketch5.addConstraint(Sketcher.Constraint("Tangent", 15, 2, 16, 2))
sketch5.addConstraint(Sketcher.Constraint("Tangent", 16, 1, 17, 1))
sketch5.addConstraint(Sketcher.Constraint("Coincident", 17, 2, 18, 1))
sketch5.addConstraint(Sketcher.Constraint("Coincident", 18, 2, 15, 1))
sketch5.addConstraint(Sketcher.Constraint("Coincident", 20, 2, 21, 1))
sketch5.addConstraint(Sketcher.Constraint("Coincident", 21, 2, 22, 1))
sketch5.addConstraint(Sketcher.Constraint("Tangent", 22, 2, 23, 2))
sketch5.addConstraint(Sketcher.Constraint("Tangent", 23, 1, 20, 1))
sketch5.addConstraint(Sketcher.Constraint("Coincident", 25, 2, 26, 1))
sketch5.addConstraint(Sketcher.Constraint("Tangent", 26, 2, 27, 2))
sketch5.addConstraint(Sketcher.Constraint("Tangent", 27, 1, 28, 1))
sketch5.addConstraint(Sketcher.Constraint("Coincident", 28, 2, 25, 1))
sketch5.addConstraint(Sketcher.Constraint("Horizontal", 0))
sketch5.addConstraint(Sketcher.Constraint("Horizontal", 2))
sketch5.addConstraint(Sketcher.Constraint("Vertical", 3))
sketch5.addConstraint(Sketcher.Constraint("Horizontal", 5))
sketch5.addConstraint(Sketcher.Constraint("Horizontal", 7))
sketch5.addConstraint(Sketcher.Constraint("Vertical", 8))
sketch5.addConstraint(Sketcher.Constraint("Horizontal", 10))
sketch5.addConstraint(Sketcher.Constraint("Horizontal", 12))
sketch5.addConstraint(Sketcher.Constraint("Vertical", 13))
sketch5.addConstraint(Sketcher.Constraint("Horizontal", 15))
sketch5.addConstraint(Sketcher.Constraint("Horizontal", 17))
sketch5.addConstraint(Sketcher.Constraint("Vertical", 18))
sketch5.addConstraint(Sketcher.Constraint("Vertical", 20))
sketch5.addConstraint(Sketcher.Constraint("Horizontal", 21))
sketch5.addConstraint(Sketcher.Constraint("Vertical", 22))
sketch5.addConstraint(Sketcher.Constraint("Horizontal", 25))
sketch5.addConstraint(Sketcher.Constraint("Vertical", 26))
sketch5.addConstraint(Sketcher.Constraint("Vertical", 28))
sketch5.addConstraint(Sketcher.Constraint("Coincident", 4, 3, 1, 3))
sketch5.addConstraint(Sketcher.Constraint("Coincident", 9, 3, 6, 3))
sketch5.addConstraint(Sketcher.Constraint("Coincident", 14, 3, 11, 3))
sketch5.addConstraint(Sketcher.Constraint("Coincident", 19, 3, 16, 3))
sketch5.addConstraint(Sketcher.Constraint("Coincident", 24, 3, 23, 3))
sketch5.addConstraint(Sketcher.Constraint("Coincident", 29, 3, 27, 3))
sketch5.addConstraint(Sketcher.Constraint("Equal", 1, 6))
sketch5.addConstraint(Sketcher.Constraint("Equal", 4, 9))
sketch5.addConstraint(Sketcher.Constraint("Equal", 6, 11))
sketch5.addConstraint(Sketcher.Constraint("Equal", 9, 14))
sketch5.addConstraint(Sketcher.Constraint("Equal", 11, 16))
sketch5.addConstraint(Sketcher.Constraint("Equal", 14, 19))
sketch5.addConstraint(Sketcher.Constraint("Equal", 16, 23))
sketch5.addConstraint(Sketcher.Constraint("Equal", 19, 24))
sketch5.addConstraint(Sketcher.Constraint("Equal", 23, 27))
sketch5.addConstraint(Sketcher.Constraint("Equal", 24, 29))
sketch5.addConstraint(Sketcher.Constraint("Horizontal", 4, 3, 6, 3))
sketch5.addConstraint(Sketcher.Constraint("Horizontal", 14, 3, 16, 3))
sketch5.addConstraint(Sketcher.Constraint("Horizontal", 17, 2, 20, 2))
sketch5.addConstraint(Sketcher.Constraint("Horizontal", 7, 2, 25, 2))
sketch5.addConstraint(Sketcher.Constraint("Vertical", 9, 3, 11, 3))
sketch5.addConstraint(Sketcher.Constraint("Vertical", 4, 3, 16, 3))
sketch5.addConstraint(Sketcher.Constraint("Vertical", 24, 3, 27, 3))
sketch5.addConstraint(Sketcher.Constraint("Vertical", 8, 2, 12, 2))
sketch5.addConstraint(Sketcher.Constraint("Vertical", 3, 2, 17, 2))
sketch5.addConstraint(Sketcher.Constraint("Equal", 2, 5))
sketch5.addConstraint(Sketcher.Constraint("Equal", 17, 20))
sketch5.addConstraint(Sketcher.Constraint("Equal", 22, 26))
sketch5.addConstraint(Sketcher.Constraint("Diameter", 4, Q("3 mm")))
sketch5.addConstraint(Sketcher.Constraint("Radius", 1, Q("3 mm")))
sketch5.addConstraint(Sketcher.Constraint("DistanceX", 0, 2, 0, 1, Q("3 mm")))
sketch5.addConstraint(Sketcher.Constraint("DistanceX", 1, 3, 6, 3, Q("101 mm")))
sketch5.addConstraint(Sketcher.Constraint("DistanceY", 6, 3, 11, 3, Q("45 mm")))
sketch5.addConstraint(Sketcher.Constraint("DistanceX", 23, 3, 11, 3, Q("50.5 mm")))
sketch5.addConstraint(Sketcher.Constraint("DistanceY", 1, 3, -1, 1, Q("20.757718 mm")))
sketch5.addConstraint(Sketcher.Constraint("DistanceX", 1, 3, -1, 1, Q("47.224237 mm")))
pad3 = body.newObject("PartDesign::Pad", "Pad002")
pad3.Profile = sketch5
pad3.Length = 9.6
doc.recompute()

fillet = body.newObject("PartDesign::Fillet", "Fillet")
fillet.Base = (pad3, edges_at(pad3, [
    (-44.224, 2.25, -23.758),
    (50.776, 2.25, -23.758),
    (50.776, 2.25, 27.242),
    (-44.224, 2.25, 27.242),
    (-44.224, 2.25, 43.742),
    (-44.224, 2.25, -40.258),
    (-9.224, 2.25, -40.258),
    (-9.224, 2.25, -23.758),
    (16.276, 2.25, -23.758),
    (16.276, 2.25, -40.258),
    (50.776, 2.25, -40.258),
    (50.776, 2.25, 43.742),
    (16.276, 2.25, 43.742),
    (16.276, 2.25, 27.242),
    (-9.224, 2.25, 27.242),
    (-9.224, 2.25, 43.742),
]))
fillet.Radius = 1

doc.recompute()
